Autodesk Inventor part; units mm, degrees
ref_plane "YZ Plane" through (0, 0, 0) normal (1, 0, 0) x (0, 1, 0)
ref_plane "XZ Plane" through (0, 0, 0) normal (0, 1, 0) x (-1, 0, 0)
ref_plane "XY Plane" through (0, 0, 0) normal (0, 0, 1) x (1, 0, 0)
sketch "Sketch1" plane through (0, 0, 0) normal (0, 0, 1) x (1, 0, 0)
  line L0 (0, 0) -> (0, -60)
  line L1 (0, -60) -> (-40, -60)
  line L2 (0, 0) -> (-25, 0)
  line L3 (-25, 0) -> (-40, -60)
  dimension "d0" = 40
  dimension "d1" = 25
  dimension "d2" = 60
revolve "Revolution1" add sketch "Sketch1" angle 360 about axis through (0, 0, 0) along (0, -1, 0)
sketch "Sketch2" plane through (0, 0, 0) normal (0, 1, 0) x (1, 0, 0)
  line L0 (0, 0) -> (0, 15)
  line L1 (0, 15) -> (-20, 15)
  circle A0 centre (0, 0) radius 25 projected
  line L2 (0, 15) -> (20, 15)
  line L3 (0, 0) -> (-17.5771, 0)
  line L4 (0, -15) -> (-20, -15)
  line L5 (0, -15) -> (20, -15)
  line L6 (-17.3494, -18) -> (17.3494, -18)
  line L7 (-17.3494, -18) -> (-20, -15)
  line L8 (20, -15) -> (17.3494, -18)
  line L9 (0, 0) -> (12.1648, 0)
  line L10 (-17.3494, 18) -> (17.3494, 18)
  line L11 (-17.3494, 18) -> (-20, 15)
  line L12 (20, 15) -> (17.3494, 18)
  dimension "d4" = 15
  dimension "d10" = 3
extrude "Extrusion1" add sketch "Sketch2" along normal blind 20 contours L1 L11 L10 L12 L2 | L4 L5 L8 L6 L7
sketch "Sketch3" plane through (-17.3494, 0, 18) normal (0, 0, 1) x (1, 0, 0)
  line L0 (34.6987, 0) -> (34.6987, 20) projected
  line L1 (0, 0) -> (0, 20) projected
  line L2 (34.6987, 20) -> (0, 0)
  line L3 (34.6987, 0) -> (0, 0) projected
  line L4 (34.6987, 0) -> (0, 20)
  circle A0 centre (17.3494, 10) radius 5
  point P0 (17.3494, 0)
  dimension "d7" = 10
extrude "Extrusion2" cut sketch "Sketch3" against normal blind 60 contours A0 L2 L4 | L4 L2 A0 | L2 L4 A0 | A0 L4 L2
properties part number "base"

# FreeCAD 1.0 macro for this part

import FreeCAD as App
import Part
import Sketcher
from FreeCAD import Vector
Q = App.Units.Quantity

doc = App.newDocument("Part")
body = doc.addObject("PartDesign::Body", "Body")

sketch1 = body.newObject("Sketcher::SketchObject", "Sketch")
sketch1.AttachmentSupport = (doc.getObject("XY_Plane"), [""])
sketch1.MapMode = "FlatFace"
sketch1.addGeometry([
    Part.LineSegment(Vector(0, -60, 0), Vector(0, 0, 0)),
    Part.LineSegment(Vector(0, 0, 0), Vector(-25, 0, 0)),
    Part.LineSegment(Vector(-25, 0, 0), Vector(-40, -60, 0)),
    Part.LineSegment(Vector(-40, -60, 0), Vector(0, -60, 0)),
], False)
sketch1.addConstraint([
    Sketcher.Constraint("Coincident", 0, 2, 1, 1),
    Sketcher.Constraint("Coincident", 1, 2, 2, 1),
    Sketcher.Constraint("Coincident", 2, 2, 3, 1),
    Sketcher.Constraint("Coincident", 3, 2, 0, 1),
    Sketcher.Constraint("Vertical", 0),
    Sketcher.Constraint("Horizontal", 1),
    Sketcher.Constraint("Horizontal", 3),
    Sketcher.Constraint("Coincident", 0, 2, -1, 1),
    Sketcher.Constraint("DistanceX", 1, 2, 1, 1, Q("25 mm")),
    Sketcher.Constraint("DistanceX", 3, 1, 3, 2, Q("40 mm")),
    Sketcher.Constraint("DistanceY", 0, 1, 0, 2, Q("60 mm")),
])
revolution = body.newObject("PartDesign::Revolution", "Revolution")
revolution.Profile = sketch1
revolution.ReferenceAxis = (sketch1, ["V_Axis"])
revolution.Angle = 360

sketch2 = body.newObject("Sketcher::SketchObject", "Sketch001")
sketch2.AttachmentSupport = (doc.getObject("XZ_Plane"), [""])
sketch2.MapMode = "FlatFace"
sketch2.addGeometry([
    Part.LineSegment(Vector(-20, -15, 0), Vector(20, -15, 0)),
    Part.LineSegment(Vector(20, -15, 0), Vector(17.3494, -18, 0)),
    Part.LineSegment(Vector(17.3494, -18, 0), Vector(-17.3494, -18, 0)),
    Part.LineSegment(Vector(-17.3494, -18, 0), Vector(-20, -15, 0)),
    Part.LineSegment(Vector(20, 15, 0), Vector(-20, 15, 0)),
    Part.LineSegment(Vector(-20, 15, 0), Vector(-17.3494, 18, 0)),
    Part.LineSegment(Vector(-17.3494, 18, 0), Vector(17.3494, 18, 0)),
    Part.LineSegment(Vector(17.3494, 18, 0), Vector(20, 15, 0)),
], False)
sketch2.addConstraint([
    Sketcher.Constraint("Coincident", 0, 2, 1, 1),
    Sketcher.Constraint("Coincident", 1, 2, 2, 1),
    Sketcher.Constraint("Coincident", 2, 2, 3, 1),
    Sketcher.Constraint("Coincident", 3, 2, 0, 1),
    Sketcher.Constraint("Coincident", 4, 2, 5, 1),
    Sketcher.Constraint("Coincident", 5, 2, 6, 1),
    Sketcher.Constraint("Coincident", 6, 2, 7, 1),
    Sketcher.Constraint("Coincident", 7, 2, 4, 1),
    Sketcher.Constraint("Horizontal", 0),
    Sketcher.Constraint("Horizontal", 2),
    Sketcher.Constraint("Horizontal", 4),
    Sketcher.Constraint("Horizontal", 6),
    Sketcher.Constraint("Symmetric", 0, 2, 4, 2, -1, 1),
    Sketcher.Constraint("Symmetric", 1, 2, 5, 2, -1, 1),
    Sketcher.Constraint("Parallel", 3, 7),
    Sketcher.Constraint("Vertical", 3, 2, 4, 2),
    Sketcher.Constraint("Vertical", 2, 2, 5, 2),
    Sketcher.Constraint("Vertical", 1, 2, 6, 2),
    Sketcher.Constraint("DistanceY", 0, 2, -1, 1, Q("15 mm")),
    Sketcher.Constraint("DistanceY", 1, 2, 0, 2, Q("3 mm")),
    Sketcher.Constraint("DistanceX", 0, 1, 0, 2, Q("40 mm")),
    Sketcher.Constraint("DistanceX", 2, 2, 2, 1, Q("34.6988 mm")),
])
pad1 = body.newObject("PartDesign::Pad", "Pad")
pad1.Profile = sketch2
pad1.Length = 20
pad1.Reversed = True

sketch3 = body.newObject("Sketcher::SketchObject", "Sketch002")
sketch3.AttachmentSupport = (doc.getObject("XY_Plane"), [""])
sketch3.MapMode = "FlatFace"
sketch3.AttachmentOffset = App.Placement(Vector(0, 0, 18), App.Rotation())
sketch3.addGeometry(Part.Circle(Vector(0, 10, 0), Vector(0, 0, 1), 5), False)
sketch3.addConstraint([
    Sketcher.Constraint("PointOnObject", 0, 3, -2),
    Sketcher.Constraint("Diameter", 0, Q("10 mm")),
    Sketcher.Constraint("DistanceY", -1, 1, 0, 3, Q("10 mm")),
])
pocket1 = body.newObject("PartDesign::Pocket", "Pocket")
pocket1.Profile = sketch3
pocket1.Length = 60

doc.recompute()
